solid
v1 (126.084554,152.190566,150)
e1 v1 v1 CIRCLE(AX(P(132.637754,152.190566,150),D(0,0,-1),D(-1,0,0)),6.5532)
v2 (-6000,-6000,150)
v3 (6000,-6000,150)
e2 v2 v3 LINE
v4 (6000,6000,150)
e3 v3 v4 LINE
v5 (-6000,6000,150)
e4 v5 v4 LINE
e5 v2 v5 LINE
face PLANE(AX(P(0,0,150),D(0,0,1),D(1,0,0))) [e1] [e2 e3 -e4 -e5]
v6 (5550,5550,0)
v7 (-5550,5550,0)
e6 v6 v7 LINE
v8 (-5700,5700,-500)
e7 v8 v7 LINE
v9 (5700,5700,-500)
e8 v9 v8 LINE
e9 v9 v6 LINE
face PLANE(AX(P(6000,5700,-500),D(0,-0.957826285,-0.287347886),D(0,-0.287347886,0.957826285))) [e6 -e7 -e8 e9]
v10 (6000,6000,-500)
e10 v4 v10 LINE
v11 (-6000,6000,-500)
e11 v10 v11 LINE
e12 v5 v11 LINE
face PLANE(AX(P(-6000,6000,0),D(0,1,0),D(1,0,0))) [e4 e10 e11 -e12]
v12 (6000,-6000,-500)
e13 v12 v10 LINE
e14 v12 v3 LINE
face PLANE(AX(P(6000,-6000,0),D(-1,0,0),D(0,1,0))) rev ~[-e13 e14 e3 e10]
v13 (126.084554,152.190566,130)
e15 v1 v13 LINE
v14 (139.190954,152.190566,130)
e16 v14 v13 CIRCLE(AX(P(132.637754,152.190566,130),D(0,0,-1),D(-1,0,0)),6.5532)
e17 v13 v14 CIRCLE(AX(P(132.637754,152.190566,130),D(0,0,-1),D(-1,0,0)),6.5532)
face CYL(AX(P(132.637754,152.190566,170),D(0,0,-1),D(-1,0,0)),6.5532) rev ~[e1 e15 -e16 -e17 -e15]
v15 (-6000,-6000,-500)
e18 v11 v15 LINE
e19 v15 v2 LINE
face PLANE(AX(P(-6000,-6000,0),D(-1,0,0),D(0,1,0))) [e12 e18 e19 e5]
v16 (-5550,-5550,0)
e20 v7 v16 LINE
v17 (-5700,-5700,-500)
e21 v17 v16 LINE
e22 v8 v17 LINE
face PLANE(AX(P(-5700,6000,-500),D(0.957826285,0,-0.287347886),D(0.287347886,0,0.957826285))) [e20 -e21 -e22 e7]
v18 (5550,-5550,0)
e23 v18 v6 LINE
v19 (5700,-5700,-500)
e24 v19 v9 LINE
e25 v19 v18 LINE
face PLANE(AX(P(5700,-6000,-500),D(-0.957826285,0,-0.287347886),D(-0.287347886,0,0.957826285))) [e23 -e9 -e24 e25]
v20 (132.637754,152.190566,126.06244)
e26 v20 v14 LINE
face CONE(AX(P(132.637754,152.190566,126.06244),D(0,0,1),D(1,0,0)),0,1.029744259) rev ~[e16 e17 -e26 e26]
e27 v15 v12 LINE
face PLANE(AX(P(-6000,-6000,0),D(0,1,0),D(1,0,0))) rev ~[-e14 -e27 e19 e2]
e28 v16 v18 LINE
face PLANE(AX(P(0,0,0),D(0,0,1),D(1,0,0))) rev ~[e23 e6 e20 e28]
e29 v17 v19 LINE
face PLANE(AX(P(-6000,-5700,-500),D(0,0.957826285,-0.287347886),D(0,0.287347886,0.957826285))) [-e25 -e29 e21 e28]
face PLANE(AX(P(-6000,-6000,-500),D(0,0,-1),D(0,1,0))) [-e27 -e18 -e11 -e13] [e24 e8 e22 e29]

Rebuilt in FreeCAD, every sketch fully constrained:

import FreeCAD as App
import Part
import Sketcher
from FreeCAD import Vector

doc = App.newDocument("Part")
body = doc.addObject("PartDesign::Body", "Body")

# Sketch on YZ plane
sketch1 = body.newObject("Sketcher::SketchObject", "Sketch")
sketch1.AttachmentSupport = (doc.getObject("YZ_Plane"), [""])
sketch1.MapMode = "FlatFace"
sketch1.addGeometry([
    Part.LineSegment(Vector(-5550, 0, 0), Vector(-6000, 0, 0)),
    Part.LineSegment(Vector(-6000, 0, 0), Vector(-6000, -500, 0)),
    Part.LineSegment(Vector(-6000, -500, 0), Vector(-5700, -500, 0)),
    Part.LineSegment(Vector(-5700, -500, 0), Vector(-5550, 0, 0)),
], False)
sketch1.addConstraint([
    Sketcher.Constraint("Coincident", 0, 2, 1, 1),
    Sketcher.Constraint("Coincident", 1, 2, 2, 1),
    Sketcher.Constraint("Coincident", 2, 2, 3, 1),
    Sketcher.Constraint("Coincident", 3, 2, 0, 1),
    Sketcher.Constraint("Horizontal", 0),
    Sketcher.Constraint("Vertical", 1),
    Sketcher.Constraint("Horizontal", 2),
    Sketcher.Constraint("PointOnObject", 0, 2, -1),
    Sketcher.Constraint("DistanceX", 0, 2, 0, 1, 450.0),
    Sketcher.Constraint("DistanceX", 2, 1, 2, 2, 300.0),
    Sketcher.Constraint("DistanceY", 1, 2, 1, 1, 500.0),
    Sketcher.Constraint("DistanceX", 0, 2, -1, 1, 6000.0),
])

# Sketch on XY plane
sketch2 = body.newObject("Sketcher::SketchObject", "Sketch001")
sketch2.AttachmentSupport = (doc.getObject("XY_Plane"), [""])
sketch2.MapMode = "FlatFace"
sketch2.addGeometry([
    Part.LineSegment(Vector(-6000, -6000, 0), Vector(6000, -6000, 0)),
    Part.LineSegment(Vector(6000, -6000, 0), Vector(6000, 6000, 0)),
    Part.LineSegment(Vector(6000, 6000, 0), Vector(-6000, 6000, 0)),
    Part.LineSegment(Vector(-6000, 6000, 0), Vector(-6000, -6000, 0)),
], False)
sketch2.addConstraint([
    Sketcher.Constraint("Coincident", 0, 2, 1, 1),
    Sketcher.Constraint("Coincident", 1, 2, 2, 1),
    Sketcher.Constraint("Coincident", 2, 2, 3, 1),
    Sketcher.Constraint("Coincident", 3, 2, 0, 1),
    Sketcher.Constraint("Horizontal", 0),
    Sketcher.Constraint("Vertical", 1),
    Sketcher.Constraint("Horizontal", 2),
    Sketcher.Constraint("Vertical", 3),
    Sketcher.Constraint("Symmetric", 0, 2, 2, 2, -1, 1),
    Sketcher.Constraint("Equal", 2, 1),
    Sketcher.Constraint("DistanceX", 0, 1, 0, 2, 12000.0),
])
doc.recompute()

additivepipe = body.newObject("PartDesign::AdditivePipe", "AdditivePipe")
additivepipe.Profile = sketch1
additivepipe.Spine = (sketch2, ["Edge1", "Edge2", "Edge3", "Edge4"])
additivepipe.Transition = "Right corner"

# Sketch on XY plane
sketch3 = body.newObject("Sketcher::SketchObject", "Sketch002")
sketch3.AttachmentSupport = (doc.getObject("XY_Plane"), [""])
sketch3.MapMode = "FlatFace"
sketch3.addGeometry([
    Part.LineSegment(Vector(-6000, 6000, 0), Vector(-6000, -6000, 0)),
    Part.LineSegment(Vector(-6000, -6000, 0), Vector(6000, -6000, 0)),
    Part.LineSegment(Vector(6000, -6000, 0), Vector(6000, 6000, 0)),
    Part.LineSegment(Vector(6000, 6000, 0), Vector(-6000, 6000, 0)),
], False)
sketch3.addConstraint([
    Sketcher.Constraint("Coincident", 0, 2, 1, 1),
    Sketcher.Constraint("Coincident", 1, 2, 2, 1),
    Sketcher.Constraint("Coincident", 2, 2, 3, 1),
    Sketcher.Constraint("Coincident", 3, 2, 0, 1),
    Sketcher.Constraint("Vertical", 0),
    Sketcher.Constraint("Horizontal", 1),
    Sketcher.Constraint("Vertical", 2),
    Sketcher.Constraint("Horizontal", 3),
    Sketcher.Constraint("Symmetric", 0, 2, 2, 2, -1, 1),
    Sketcher.Constraint("Equal", 3, 0),
    Sketcher.Constraint("DistanceX", 1, 1, 1, 2, 12000.0),
])
pad1 = body.newObject("PartDesign::Pad", "Pad")
pad1.Profile = sketch3
pad1.Length = 150

# Sketch on XY plane
sketch4 = body.newObject("Sketcher::SketchObject", "Sketch003")
sketch4.AttachmentSupport = (doc.getObject("XY_Plane"), [""])
sketch4.MapMode = "FlatFace"
sketch4.AttachmentOffset = App.Placement(Vector(0, 0, 150), App.Rotation())
sketch4.addGeometry(Part.Circle(Vector(133, 152, 0), Vector(0, 0, 1), 7), False)
sketch4.addConstraint([
    Sketcher.Constraint("Diameter", 0, 13.1064),
    Sketcher.Constraint("DistanceX", -1, 1, 0, 3, 132.637754),
    Sketcher.Constraint("DistanceY", -1, 1, 0, 3, 152.190566),
])
doc.recompute()
hole = body.newObject("PartDesign::Hole", "Hole")
hole.Profile = sketch4
hole.ThreadType = "None"
hole.Diameter = 13.1064
hole.DepthType = "Dimension"
hole.Depth = 20
hole.DrillPoint = "Angled"
hole.DrillPointAngle = 118

doc.recompute()
